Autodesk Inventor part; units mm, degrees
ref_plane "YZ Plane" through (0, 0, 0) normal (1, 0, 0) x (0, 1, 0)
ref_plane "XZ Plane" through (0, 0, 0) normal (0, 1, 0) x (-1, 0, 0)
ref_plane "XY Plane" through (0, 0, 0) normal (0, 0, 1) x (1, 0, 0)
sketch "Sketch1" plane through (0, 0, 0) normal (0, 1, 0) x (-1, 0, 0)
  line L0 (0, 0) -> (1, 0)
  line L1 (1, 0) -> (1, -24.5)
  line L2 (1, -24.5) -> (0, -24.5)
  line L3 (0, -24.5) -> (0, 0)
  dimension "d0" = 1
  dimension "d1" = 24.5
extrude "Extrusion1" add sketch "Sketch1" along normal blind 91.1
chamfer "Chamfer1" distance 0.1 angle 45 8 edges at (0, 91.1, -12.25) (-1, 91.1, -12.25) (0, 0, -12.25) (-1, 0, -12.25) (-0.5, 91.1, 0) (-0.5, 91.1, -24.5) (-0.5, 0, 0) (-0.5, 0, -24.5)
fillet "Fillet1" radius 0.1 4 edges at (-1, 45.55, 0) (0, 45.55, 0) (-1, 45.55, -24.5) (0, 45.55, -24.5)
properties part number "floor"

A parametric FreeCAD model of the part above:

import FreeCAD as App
import Part
import Sketcher
from FreeCAD import Vector
Q = App.Units.Quantity


def edges_at(feature, points):
    """Names of the edges that pass closest to the given points."""
    edges = feature.Shape.Edges
    near = lambda p: min(range(len(edges)), key=lambda i: edges[i].distToShape(Part.Vertex(*p))[0])
    return sorted({f"Edge{near(p) + 1}" for p in points})


def add_polygon(sketch, points):
    """Adds a closed chain of lines whose ends are joined by coincident constraints."""
    first, n = sketch.GeometryCount, len(points)
    for a, b in zip(points, points[1:] + points[:1]):
        sketch.addGeometry(Part.LineSegment(App.Vector(*a, 0), App.Vector(*b, 0)), False)
    for i in range(n):
        sketch.addConstraint(Sketcher.Constraint("Coincident", first + i, 2, first + (i + 1) % n, 1))

doc = App.newDocument("Part")
params = doc.addObject("Spreadsheet::Sheet", "Params")
for row, (alias, value) in enumerate([
    ("sketch1_width", "1 mm"),
    ("sketch1_height", "24.5 mm"),
    ("pad1_length", "91.1 mm"),
    ("chamfer_size", "0.1 mm"),
    ("fillet_radius", "0.1 mm"),
], start=1):
    params.set(f"A{row}", alias)
    params.set(f"B{row}", "=" + value)
    params.setAlias(f"B{row}", alias)

body = doc.addObject("PartDesign::Body", "Body")

# Sketch on XZ plane
sketch1 = body.newObject("Sketcher::SketchObject", "Sketch")
sketch1.AttachmentSupport = (doc.getObject("XZ_Plane"), [""])
sketch1.MapMode = "FlatFace"
add_polygon(sketch1, [(-1, 0), (0, 0), (0, -24.5), (-1, -24.5)])  # lines 0-3
sketch1.addConstraint([
    Sketcher.Constraint("Horizontal", 0),
    Sketcher.Constraint("Vertical", 1),
    Sketcher.Constraint("Horizontal", 2),
    Sketcher.Constraint("Vertical", 3),
    Sketcher.Constraint("Coincident", 0, 2, -1, 1),
    Sketcher.Constraint("DistanceX", 0, 1, 0, 2, Q("1 mm")),
    Sketcher.Constraint("DistanceY", 1, 2, 1, 1, Q("24.5 mm")),
])
sketch1.setExpression("Constraints[9]", "Params.sketch1_width")
sketch1.setExpression("Constraints[10]", "Params.sketch1_height")
pad1 = body.newObject("PartDesign::Pad", "Pad")
pad1.Profile = sketch1
pad1.setExpression("Length", "Params.pad1_length")
pad1.Reversed = True
doc.recompute()

chamfer = body.newObject("PartDesign::Chamfer", "Chamfer")
chamfer.Base = (pad1, edges_at(pad1, [
    (0, 91.1, -12.25),
    (-1, 91.1, -12.25),
    (0, 0, -12.25),
    (-1, 0, -12.25),
    (-0.5, 91.1, 0),
    (-0.5, 91.1, -24.5),
    (-0.5, 0, 0),
    (-0.5, 0, -24.5),
]))
chamfer.setExpression("Size", "Params.chamfer_size")
doc.recompute()

fillet = body.newObject("PartDesign::Fillet", "Fillet")
fillet.Base = (chamfer, edges_at(chamfer, [
    (-1, 45.55, 0),
    (0, 45.55, 0),
    (-1, 45.55, -24.5),
    (0, 45.55, -24.5),
]))
fillet.setExpression("Radius", "Params.fillet_radius")

doc.recompute()
